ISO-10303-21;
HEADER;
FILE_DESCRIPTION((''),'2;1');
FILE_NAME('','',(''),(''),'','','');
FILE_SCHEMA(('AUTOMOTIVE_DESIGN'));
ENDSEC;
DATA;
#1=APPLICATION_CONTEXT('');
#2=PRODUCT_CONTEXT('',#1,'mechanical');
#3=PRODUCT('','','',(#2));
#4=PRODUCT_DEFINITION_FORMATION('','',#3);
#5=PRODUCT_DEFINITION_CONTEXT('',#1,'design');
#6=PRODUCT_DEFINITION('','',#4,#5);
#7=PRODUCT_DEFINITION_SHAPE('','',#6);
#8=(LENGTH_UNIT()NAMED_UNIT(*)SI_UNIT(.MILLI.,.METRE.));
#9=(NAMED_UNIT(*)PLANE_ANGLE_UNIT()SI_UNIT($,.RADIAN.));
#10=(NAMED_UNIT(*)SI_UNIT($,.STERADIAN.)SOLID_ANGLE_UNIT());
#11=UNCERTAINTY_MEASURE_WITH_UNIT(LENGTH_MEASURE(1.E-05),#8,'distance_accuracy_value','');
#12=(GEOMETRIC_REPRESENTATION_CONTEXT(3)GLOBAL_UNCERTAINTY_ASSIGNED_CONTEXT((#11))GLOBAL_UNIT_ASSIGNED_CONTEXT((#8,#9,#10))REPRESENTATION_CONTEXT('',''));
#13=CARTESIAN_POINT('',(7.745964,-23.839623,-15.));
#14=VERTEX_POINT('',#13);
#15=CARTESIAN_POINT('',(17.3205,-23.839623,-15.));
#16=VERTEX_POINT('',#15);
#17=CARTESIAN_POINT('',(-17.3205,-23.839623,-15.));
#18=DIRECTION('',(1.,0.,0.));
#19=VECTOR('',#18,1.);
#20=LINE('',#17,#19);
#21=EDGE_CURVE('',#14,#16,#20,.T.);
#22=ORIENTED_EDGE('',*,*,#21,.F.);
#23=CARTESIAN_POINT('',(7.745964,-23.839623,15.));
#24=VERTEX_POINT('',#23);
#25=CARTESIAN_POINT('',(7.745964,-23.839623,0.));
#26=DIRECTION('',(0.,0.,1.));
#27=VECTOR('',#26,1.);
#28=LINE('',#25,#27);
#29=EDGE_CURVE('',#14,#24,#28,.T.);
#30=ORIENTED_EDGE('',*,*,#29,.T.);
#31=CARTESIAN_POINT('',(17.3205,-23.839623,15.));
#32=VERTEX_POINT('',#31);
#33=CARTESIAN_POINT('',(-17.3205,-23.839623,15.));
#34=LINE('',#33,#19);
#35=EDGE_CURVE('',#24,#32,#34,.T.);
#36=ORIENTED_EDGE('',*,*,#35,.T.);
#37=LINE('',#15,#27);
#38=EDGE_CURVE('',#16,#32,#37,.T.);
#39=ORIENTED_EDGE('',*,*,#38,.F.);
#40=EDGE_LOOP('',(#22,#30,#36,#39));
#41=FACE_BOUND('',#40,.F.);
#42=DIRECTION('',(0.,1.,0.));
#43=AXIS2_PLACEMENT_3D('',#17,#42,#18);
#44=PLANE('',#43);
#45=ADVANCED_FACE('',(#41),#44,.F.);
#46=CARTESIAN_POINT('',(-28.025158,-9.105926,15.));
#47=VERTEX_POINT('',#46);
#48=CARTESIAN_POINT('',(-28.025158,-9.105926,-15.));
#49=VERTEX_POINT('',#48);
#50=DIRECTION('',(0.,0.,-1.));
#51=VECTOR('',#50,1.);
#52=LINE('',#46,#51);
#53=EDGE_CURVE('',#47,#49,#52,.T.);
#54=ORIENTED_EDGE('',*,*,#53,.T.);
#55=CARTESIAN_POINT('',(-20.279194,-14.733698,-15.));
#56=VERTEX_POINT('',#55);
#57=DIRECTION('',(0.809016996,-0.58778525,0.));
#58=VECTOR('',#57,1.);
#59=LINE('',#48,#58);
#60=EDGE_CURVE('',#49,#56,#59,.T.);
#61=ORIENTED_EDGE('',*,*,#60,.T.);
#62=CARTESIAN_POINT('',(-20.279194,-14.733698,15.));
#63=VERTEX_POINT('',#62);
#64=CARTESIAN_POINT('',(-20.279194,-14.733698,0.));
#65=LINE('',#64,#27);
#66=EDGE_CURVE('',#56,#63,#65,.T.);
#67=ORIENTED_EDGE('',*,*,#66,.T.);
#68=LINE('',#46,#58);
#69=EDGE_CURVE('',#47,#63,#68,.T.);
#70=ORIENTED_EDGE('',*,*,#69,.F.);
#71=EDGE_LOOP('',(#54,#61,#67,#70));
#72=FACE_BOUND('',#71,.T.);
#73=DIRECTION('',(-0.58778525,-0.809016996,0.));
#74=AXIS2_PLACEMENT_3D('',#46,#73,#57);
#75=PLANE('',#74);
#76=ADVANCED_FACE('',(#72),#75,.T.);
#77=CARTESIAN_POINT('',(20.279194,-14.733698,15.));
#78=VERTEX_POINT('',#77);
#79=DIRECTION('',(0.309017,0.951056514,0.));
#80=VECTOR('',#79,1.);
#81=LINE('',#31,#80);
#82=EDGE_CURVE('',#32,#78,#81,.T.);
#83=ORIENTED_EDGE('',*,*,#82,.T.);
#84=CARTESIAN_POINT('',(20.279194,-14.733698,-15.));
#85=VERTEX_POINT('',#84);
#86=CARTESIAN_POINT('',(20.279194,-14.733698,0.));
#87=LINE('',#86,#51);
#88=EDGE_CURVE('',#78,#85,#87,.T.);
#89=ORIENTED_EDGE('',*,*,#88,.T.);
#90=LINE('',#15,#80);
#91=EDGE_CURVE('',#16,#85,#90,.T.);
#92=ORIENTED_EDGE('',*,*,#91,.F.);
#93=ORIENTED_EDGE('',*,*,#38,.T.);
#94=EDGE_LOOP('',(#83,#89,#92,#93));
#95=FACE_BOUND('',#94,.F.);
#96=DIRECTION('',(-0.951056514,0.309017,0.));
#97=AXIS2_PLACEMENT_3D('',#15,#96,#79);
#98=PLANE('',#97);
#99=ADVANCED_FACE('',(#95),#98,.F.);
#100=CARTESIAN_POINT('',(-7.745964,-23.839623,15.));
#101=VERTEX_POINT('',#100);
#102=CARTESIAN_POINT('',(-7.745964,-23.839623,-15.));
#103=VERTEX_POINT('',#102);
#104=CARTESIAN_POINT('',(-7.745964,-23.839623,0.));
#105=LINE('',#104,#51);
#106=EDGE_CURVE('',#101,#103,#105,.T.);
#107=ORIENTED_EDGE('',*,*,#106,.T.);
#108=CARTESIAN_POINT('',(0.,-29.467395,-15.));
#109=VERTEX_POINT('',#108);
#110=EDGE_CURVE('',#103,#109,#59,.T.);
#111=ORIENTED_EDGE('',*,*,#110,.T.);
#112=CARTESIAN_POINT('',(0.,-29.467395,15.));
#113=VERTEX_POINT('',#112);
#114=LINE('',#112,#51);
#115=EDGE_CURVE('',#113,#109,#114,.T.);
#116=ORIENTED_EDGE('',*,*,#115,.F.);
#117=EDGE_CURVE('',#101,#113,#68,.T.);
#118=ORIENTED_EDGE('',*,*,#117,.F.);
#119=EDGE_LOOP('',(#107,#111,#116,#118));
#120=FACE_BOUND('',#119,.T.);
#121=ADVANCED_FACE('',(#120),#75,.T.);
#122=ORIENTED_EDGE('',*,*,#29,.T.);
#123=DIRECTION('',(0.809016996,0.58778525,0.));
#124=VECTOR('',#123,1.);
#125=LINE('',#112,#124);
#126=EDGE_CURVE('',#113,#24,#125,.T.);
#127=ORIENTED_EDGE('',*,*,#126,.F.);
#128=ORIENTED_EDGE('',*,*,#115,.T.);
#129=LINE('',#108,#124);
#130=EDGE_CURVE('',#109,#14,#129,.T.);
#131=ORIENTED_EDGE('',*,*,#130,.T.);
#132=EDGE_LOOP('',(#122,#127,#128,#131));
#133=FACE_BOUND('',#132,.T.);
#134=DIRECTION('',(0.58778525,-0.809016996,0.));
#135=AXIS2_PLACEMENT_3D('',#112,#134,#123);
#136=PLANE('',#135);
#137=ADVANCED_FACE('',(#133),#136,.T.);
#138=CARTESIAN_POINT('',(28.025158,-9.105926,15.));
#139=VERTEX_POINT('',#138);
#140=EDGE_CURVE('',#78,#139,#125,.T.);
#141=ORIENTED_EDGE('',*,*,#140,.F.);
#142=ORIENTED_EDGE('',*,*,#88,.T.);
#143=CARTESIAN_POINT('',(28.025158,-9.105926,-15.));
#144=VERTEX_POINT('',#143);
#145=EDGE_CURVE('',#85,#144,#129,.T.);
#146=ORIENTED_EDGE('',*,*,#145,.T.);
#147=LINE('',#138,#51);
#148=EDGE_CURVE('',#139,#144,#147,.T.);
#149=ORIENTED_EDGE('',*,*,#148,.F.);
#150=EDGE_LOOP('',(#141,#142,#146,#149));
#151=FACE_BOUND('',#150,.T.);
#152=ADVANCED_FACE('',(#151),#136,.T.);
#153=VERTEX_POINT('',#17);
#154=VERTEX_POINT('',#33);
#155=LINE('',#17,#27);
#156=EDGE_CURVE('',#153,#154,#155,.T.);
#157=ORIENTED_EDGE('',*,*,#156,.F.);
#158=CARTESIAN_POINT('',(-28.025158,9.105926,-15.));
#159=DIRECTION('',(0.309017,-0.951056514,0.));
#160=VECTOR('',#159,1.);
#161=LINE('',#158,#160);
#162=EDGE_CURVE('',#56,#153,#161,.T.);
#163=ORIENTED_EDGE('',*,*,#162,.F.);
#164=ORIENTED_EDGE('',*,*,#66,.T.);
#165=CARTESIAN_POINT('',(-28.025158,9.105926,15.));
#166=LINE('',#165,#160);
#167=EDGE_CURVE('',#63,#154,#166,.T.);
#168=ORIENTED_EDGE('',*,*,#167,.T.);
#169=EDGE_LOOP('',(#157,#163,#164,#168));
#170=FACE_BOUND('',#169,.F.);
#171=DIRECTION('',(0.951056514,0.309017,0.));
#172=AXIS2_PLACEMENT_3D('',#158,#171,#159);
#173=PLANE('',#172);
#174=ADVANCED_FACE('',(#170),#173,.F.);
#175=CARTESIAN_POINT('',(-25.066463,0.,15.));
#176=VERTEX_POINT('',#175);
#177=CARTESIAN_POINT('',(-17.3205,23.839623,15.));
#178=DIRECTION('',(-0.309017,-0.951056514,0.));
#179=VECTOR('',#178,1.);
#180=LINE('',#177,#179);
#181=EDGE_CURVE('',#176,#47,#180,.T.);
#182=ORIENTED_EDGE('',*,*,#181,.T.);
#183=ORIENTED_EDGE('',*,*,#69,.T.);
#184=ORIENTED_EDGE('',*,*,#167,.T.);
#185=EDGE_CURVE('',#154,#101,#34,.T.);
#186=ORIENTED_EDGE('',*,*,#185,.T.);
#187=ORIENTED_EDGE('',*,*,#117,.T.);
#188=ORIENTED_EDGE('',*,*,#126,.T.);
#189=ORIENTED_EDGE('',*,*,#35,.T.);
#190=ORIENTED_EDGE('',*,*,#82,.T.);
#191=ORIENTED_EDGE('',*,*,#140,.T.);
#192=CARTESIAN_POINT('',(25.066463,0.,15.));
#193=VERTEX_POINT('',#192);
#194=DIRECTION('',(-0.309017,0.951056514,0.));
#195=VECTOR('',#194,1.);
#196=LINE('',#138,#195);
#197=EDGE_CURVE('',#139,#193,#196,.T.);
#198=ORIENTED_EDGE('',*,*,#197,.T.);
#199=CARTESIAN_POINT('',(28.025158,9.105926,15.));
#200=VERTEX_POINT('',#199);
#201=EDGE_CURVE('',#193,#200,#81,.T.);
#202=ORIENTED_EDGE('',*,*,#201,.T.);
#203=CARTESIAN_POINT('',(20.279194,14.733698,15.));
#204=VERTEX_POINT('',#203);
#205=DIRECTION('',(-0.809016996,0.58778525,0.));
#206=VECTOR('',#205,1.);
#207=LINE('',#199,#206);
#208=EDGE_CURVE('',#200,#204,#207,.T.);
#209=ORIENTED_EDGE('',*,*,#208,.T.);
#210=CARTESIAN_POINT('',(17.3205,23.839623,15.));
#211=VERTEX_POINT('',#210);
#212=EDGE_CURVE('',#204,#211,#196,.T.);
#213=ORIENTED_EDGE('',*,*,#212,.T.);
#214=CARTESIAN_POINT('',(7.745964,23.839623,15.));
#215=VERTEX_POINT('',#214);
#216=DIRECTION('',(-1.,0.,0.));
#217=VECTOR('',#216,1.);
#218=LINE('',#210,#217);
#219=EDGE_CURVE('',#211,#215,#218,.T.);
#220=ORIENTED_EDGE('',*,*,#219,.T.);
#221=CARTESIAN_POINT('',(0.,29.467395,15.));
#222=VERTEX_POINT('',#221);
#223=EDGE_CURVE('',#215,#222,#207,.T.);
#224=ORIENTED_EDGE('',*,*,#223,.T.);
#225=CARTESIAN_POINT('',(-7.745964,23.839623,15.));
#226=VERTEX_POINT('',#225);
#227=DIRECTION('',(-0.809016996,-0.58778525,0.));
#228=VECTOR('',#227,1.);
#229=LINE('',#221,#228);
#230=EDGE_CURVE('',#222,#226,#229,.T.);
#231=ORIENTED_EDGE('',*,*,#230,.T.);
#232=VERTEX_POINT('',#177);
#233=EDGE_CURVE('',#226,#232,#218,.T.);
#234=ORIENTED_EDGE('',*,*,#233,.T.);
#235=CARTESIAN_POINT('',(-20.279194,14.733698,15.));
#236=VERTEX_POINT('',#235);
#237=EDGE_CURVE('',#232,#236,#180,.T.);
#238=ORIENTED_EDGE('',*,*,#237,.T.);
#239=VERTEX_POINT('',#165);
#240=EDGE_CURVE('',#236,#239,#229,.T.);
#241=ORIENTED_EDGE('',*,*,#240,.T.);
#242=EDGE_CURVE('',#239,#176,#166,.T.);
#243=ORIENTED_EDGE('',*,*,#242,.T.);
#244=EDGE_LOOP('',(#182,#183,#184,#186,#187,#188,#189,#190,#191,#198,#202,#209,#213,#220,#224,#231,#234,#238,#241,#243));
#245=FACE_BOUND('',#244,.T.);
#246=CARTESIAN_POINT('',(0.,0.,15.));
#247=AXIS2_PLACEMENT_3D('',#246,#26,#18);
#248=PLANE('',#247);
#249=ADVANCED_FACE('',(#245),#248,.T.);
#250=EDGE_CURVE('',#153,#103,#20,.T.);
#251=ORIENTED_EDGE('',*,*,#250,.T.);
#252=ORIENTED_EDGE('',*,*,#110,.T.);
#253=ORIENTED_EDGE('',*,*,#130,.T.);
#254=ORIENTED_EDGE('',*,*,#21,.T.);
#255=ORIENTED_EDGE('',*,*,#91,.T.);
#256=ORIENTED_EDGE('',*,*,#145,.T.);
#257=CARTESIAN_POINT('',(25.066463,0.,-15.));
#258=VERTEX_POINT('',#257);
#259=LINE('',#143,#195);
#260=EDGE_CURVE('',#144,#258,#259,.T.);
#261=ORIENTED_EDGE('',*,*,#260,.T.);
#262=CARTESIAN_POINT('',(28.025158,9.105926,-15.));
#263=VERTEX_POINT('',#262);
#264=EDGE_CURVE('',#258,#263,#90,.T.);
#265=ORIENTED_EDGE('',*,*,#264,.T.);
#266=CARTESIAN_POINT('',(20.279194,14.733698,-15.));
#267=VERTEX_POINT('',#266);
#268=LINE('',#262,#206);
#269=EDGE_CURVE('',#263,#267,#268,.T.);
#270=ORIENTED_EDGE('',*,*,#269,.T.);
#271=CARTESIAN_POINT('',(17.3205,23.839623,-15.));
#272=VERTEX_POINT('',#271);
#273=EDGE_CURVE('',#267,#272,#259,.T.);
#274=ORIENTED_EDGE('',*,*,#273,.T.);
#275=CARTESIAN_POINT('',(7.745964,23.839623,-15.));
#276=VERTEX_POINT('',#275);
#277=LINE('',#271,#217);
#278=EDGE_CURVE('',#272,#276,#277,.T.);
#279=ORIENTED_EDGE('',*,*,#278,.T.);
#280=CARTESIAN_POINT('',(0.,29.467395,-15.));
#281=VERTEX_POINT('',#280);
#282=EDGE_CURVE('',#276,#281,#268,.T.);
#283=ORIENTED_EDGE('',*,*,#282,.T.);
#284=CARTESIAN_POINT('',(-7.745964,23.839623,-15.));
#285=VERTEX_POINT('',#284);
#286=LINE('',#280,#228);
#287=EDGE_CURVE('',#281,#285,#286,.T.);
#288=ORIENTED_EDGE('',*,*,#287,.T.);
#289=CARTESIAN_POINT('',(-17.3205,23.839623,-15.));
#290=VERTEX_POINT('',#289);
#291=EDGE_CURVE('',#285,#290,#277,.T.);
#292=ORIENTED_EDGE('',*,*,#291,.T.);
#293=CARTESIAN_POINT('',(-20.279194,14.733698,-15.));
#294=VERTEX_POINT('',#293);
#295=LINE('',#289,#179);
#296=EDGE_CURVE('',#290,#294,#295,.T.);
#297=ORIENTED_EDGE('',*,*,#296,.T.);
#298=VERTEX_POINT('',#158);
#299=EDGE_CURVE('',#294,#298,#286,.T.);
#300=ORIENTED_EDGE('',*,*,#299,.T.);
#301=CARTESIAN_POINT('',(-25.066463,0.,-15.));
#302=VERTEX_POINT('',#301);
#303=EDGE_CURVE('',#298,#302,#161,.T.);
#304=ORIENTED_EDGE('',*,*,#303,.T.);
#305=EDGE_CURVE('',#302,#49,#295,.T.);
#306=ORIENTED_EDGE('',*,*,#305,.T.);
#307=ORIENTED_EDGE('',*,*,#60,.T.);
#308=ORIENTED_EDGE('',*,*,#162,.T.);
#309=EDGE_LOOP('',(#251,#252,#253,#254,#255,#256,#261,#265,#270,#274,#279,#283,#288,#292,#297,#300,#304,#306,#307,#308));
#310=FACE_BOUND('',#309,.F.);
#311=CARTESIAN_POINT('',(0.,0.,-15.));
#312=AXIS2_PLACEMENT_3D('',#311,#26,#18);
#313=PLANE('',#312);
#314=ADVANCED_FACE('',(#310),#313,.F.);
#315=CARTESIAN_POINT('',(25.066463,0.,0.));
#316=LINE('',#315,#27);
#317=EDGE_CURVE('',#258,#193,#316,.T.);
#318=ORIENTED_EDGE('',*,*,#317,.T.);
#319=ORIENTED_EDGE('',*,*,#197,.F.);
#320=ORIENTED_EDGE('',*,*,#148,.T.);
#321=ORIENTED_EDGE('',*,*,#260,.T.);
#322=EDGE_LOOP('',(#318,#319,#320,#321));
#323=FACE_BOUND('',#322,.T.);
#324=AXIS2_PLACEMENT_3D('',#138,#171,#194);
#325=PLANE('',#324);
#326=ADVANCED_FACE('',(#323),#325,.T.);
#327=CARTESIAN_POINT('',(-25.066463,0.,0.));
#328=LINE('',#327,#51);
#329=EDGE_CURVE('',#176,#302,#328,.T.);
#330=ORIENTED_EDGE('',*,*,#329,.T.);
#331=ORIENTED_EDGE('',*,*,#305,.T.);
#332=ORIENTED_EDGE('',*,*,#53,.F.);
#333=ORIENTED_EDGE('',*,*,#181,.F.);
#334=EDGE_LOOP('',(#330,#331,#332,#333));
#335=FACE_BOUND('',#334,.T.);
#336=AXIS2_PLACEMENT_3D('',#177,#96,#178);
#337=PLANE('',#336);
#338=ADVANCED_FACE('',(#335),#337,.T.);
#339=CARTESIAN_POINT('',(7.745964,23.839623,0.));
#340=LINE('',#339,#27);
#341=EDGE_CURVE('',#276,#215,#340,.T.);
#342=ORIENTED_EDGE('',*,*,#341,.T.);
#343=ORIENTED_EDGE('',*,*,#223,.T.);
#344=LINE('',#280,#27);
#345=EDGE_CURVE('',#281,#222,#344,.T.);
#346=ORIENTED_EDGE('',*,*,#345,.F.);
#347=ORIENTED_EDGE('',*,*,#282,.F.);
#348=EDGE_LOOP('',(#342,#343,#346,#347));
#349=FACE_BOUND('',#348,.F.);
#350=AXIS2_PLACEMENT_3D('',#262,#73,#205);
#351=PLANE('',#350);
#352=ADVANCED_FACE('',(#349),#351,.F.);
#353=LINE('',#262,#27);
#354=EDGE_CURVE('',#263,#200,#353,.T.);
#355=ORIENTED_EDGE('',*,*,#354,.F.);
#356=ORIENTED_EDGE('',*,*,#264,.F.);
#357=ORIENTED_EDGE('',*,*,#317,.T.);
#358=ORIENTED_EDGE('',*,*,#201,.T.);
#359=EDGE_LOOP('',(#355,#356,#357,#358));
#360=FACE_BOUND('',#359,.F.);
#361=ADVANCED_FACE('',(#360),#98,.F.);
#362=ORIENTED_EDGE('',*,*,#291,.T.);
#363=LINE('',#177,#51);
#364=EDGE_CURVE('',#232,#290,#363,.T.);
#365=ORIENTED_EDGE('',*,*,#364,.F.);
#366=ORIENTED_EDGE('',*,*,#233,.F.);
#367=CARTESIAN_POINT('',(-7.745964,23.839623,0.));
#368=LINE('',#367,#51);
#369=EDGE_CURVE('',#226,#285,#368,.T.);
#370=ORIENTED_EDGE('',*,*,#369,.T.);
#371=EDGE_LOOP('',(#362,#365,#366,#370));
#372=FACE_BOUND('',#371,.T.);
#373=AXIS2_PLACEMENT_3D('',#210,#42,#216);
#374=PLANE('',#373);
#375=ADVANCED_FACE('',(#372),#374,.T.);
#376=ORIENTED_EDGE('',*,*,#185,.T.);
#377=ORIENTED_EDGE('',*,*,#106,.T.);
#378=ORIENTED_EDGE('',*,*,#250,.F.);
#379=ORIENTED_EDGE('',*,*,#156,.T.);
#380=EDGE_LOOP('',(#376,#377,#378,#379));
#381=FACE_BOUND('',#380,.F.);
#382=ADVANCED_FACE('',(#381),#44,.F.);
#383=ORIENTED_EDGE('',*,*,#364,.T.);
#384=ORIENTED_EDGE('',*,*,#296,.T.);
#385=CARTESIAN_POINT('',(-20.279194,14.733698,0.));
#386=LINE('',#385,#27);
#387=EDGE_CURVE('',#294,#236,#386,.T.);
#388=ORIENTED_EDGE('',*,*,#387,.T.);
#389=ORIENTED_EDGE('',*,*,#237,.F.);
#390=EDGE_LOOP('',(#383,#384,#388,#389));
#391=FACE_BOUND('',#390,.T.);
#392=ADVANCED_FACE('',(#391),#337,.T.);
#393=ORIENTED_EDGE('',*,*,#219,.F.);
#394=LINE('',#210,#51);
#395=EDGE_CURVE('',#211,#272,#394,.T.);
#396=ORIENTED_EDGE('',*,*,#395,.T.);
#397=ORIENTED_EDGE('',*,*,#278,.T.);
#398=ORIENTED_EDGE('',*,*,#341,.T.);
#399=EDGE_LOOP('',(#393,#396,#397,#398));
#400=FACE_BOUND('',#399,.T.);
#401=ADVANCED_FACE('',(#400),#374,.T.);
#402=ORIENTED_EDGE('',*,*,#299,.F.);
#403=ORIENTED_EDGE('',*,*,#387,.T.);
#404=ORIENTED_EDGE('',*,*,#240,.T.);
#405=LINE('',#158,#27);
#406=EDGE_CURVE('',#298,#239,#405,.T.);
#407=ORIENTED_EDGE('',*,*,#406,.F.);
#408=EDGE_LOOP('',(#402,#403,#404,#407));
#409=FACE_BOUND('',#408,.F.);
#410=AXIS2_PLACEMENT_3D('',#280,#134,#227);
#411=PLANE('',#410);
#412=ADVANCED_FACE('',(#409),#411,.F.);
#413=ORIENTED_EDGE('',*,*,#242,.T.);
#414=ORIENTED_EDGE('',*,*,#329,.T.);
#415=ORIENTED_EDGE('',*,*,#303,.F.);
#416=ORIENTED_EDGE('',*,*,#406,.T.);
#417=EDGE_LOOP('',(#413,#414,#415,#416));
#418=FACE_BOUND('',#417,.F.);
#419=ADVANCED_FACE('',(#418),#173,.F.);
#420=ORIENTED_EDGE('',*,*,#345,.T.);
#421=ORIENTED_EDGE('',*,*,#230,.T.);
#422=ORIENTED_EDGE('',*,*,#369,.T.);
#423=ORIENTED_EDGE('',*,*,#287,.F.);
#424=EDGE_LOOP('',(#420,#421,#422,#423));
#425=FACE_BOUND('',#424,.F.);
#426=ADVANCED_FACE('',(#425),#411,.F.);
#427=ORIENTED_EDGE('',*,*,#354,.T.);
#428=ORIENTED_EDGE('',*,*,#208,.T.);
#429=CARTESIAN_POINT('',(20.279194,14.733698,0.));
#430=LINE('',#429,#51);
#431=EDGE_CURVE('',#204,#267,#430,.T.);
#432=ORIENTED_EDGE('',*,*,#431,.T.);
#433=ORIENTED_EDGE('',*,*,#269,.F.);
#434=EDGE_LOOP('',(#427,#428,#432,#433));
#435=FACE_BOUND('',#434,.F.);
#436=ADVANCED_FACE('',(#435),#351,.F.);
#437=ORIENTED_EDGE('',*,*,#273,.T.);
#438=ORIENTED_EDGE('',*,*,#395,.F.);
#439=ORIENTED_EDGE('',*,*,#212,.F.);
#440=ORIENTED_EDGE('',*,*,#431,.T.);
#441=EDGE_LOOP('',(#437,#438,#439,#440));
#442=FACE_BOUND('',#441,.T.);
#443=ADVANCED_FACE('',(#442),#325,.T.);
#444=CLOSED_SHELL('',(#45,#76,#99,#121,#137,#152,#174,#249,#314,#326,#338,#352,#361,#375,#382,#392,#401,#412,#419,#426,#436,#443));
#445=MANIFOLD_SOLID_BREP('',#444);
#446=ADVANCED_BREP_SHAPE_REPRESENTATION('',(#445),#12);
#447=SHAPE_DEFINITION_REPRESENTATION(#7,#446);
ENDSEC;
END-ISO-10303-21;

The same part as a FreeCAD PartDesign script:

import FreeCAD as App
import Part
import Sketcher

V = App.Vector
Q = App.Units.Quantity


def add_polygon(sketch, points):
    """Adds a closed chain of lines whose ends are joined by coincident constraints."""
    first, n = sketch.GeometryCount, len(points)
    for a, b in zip(points, points[1:] + points[:1]):
        sketch.addGeometry(Part.LineSegment(App.Vector(*a, 0), App.Vector(*b, 0)), False)
    for i in range(n):
        sketch.addConstraint(Sketcher.Constraint("Coincident", first + i, 2, first + (i + 1) % n, 1))

doc = App.newDocument("Part")
body = doc.addObject("PartDesign::Body", "Body")

sketch1 = body.newObject("Sketcher::SketchObject", "Sketch")
sketch1.AttachmentSupport = (doc.getObject("XY_Plane"), [""])
sketch1.MapMode = "FlatFace"
sketch1.AttachmentOffset = App.Placement(V(0, 0, 15), App.Rotation())
add_polygon(sketch1, [(17, 24), (-17, 24), (-28, -9), (0, -29), (28, -9)])
sketch1.addConstraint(Sketcher.Constraint("Horizontal", 0))
sketch1.addConstraint(Sketcher.Constraint("Symmetric", 1, 2, 3, 2, -2))
sketch1.addConstraint(Sketcher.Constraint("PointOnObject", 2, 2, -2))
sketch1.addConstraint(Sketcher.Constraint("Equal", 1, 2))
sketch1.addConstraint(Sketcher.Constraint("Equal", 3, 4))
sketch1.addConstraint(Sketcher.Constraint("Angle", 1, Q("-108 deg")))
sketch1.addConstraint(Sketcher.Constraint("Angle", 2, Q("-36 deg")))
sketch1.addConstraint(Sketcher.Constraint("DistanceX", 0, 2, 0, 1, Q("34.641 mm")))
sketch1.addConstraint(Sketcher.Constraint("DistanceY", -1, 1, 0, 2, Q("23.839623 mm")))
pad1 = body.newObject("PartDesign::Pad", "Pad")
pad1.Profile = sketch1
pad1.Length = 30
pad1.Reversed = True

sketch2 = body.newObject("Sketcher::SketchObject", "Sketch001")
sketch2.AttachmentSupport = (doc.getObject("XY_Plane"), [""])
sketch2.MapMode = "FlatFace"
sketch2.AttachmentOffset = App.Placement(V(0, 0, -15), App.Rotation())
add_polygon(sketch2, [(-17, -24), (17, -24), (28, 9), (0, 29), (-28, 9)])
sketch2.addConstraint(Sketcher.Constraint("Horizontal", 0))
sketch2.addConstraint(Sketcher.Constraint("Symmetric", 1, 2, 3, 2, -2))
sketch2.addConstraint(Sketcher.Constraint("PointOnObject", 2, 2, -2))
sketch2.addConstraint(Sketcher.Constraint("Equal", 1, 2))
sketch2.addConstraint(Sketcher.Constraint("Equal", 3, 4))
sketch2.addConstraint(Sketcher.Constraint("Angle", 1, Q("72 deg")))
sketch2.addConstraint(Sketcher.Constraint("Angle", 2, Q("144 deg")))
sketch2.addConstraint(Sketcher.Constraint("DistanceX", 0, 1, 0, 2, Q("34.641 mm")))
sketch2.addConstraint(Sketcher.Constraint("DistanceY", 0, 2, -1, 1, Q("23.839623 mm")))
pad2 = body.newObject("PartDesign::Pad", "Pad001")
pad2.Profile = sketch2
pad2.Length = 30

doc.recompute()
